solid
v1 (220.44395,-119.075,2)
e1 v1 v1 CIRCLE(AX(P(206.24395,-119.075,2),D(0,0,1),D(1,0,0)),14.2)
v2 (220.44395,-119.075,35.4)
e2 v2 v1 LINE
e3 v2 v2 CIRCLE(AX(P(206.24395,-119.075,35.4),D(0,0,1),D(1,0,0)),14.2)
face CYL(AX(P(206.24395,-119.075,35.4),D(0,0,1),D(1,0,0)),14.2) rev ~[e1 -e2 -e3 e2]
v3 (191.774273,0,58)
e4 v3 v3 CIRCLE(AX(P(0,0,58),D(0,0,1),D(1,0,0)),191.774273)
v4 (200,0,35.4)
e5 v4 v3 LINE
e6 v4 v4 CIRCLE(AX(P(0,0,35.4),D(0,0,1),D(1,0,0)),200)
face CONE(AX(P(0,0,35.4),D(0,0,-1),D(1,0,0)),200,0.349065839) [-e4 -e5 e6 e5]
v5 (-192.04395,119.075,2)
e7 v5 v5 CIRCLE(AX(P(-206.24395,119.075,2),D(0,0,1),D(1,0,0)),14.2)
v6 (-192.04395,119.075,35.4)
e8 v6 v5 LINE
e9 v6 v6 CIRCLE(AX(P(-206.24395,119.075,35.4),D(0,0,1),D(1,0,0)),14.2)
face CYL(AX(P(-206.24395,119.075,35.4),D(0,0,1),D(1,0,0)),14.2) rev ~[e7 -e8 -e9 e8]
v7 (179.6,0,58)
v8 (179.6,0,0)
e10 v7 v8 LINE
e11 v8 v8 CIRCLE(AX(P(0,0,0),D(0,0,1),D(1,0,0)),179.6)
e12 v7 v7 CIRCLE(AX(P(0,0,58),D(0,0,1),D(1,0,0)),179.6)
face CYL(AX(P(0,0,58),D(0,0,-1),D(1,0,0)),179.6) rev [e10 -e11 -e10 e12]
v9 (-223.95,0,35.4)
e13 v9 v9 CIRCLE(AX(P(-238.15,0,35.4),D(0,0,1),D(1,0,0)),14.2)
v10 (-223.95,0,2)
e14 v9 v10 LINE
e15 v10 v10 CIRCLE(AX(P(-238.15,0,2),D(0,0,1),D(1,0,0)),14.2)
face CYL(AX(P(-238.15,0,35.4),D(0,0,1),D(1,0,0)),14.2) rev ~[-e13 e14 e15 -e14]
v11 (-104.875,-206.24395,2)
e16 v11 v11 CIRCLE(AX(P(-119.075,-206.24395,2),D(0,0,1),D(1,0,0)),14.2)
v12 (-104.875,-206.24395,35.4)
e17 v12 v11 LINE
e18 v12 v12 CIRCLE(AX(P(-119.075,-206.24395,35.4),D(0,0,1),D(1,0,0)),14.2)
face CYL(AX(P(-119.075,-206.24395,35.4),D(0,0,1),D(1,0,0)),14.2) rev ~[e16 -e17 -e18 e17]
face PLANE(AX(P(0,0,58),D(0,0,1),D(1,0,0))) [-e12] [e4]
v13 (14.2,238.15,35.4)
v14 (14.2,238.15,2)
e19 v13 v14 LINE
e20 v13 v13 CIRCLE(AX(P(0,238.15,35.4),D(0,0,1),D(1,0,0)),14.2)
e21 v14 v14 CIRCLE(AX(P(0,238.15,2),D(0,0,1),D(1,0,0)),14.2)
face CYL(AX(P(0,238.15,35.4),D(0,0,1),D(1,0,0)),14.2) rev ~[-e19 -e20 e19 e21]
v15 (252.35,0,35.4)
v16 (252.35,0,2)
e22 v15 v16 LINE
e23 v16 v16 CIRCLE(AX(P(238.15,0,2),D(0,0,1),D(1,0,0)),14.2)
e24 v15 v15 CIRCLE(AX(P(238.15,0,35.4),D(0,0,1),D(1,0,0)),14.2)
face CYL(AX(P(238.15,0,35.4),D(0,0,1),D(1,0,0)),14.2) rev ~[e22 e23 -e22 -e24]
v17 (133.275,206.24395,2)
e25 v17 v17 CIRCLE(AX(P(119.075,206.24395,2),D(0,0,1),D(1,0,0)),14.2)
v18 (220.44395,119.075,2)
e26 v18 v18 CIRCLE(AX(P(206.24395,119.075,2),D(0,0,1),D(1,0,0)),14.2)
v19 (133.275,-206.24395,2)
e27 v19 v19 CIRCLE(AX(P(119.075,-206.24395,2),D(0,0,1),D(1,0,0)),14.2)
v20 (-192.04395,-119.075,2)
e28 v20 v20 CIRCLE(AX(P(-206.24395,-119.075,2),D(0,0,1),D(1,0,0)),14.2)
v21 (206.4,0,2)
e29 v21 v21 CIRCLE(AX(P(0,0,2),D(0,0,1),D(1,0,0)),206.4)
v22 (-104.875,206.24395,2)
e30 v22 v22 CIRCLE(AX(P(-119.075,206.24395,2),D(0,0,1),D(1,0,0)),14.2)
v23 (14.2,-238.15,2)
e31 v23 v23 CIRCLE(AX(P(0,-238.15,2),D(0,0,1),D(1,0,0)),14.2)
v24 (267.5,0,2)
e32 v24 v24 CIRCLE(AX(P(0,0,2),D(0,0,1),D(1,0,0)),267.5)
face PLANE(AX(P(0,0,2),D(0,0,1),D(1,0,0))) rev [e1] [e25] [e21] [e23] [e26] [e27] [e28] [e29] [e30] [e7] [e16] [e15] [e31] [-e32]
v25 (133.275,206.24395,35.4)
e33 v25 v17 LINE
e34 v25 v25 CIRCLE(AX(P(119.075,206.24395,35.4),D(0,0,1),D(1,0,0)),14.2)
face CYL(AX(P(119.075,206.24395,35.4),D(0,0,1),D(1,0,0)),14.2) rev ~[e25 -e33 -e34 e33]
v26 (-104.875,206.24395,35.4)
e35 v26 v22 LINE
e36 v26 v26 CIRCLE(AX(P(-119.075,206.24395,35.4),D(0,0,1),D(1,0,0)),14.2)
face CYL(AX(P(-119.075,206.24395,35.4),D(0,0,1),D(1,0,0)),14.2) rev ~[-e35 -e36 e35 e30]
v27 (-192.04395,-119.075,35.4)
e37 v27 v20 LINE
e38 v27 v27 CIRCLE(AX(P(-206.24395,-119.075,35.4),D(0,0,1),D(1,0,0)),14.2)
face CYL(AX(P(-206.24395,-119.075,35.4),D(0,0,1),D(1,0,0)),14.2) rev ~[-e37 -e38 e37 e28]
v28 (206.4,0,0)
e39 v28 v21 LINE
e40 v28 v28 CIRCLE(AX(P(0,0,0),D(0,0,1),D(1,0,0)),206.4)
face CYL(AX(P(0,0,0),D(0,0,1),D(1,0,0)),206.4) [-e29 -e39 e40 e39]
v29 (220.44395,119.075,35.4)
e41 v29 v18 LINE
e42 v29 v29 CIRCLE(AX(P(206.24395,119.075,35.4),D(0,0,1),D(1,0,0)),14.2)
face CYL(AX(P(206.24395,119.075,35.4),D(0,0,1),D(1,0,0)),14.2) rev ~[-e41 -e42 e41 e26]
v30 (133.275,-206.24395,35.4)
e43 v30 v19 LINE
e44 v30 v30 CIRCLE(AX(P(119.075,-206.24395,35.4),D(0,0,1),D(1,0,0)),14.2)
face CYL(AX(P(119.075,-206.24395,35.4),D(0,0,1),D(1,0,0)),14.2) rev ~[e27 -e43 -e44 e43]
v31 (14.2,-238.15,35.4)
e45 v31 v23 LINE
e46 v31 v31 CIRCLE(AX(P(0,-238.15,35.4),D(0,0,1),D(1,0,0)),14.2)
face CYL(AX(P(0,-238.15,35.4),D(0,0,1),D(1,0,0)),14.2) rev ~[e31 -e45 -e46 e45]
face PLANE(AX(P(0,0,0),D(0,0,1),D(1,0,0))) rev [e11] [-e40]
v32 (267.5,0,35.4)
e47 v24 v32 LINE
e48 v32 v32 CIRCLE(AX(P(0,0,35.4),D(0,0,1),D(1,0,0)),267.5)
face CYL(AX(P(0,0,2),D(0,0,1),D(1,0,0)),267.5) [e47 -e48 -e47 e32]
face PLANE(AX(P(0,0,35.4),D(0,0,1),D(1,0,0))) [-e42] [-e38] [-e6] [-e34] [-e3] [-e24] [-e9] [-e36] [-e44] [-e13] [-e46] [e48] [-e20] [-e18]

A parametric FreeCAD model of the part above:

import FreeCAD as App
import Part
import Sketcher
Q = App.Units.Quantity


def add_polygon(sketch, points):
    """Adds a closed chain of lines whose ends are joined by coincident constraints."""
    first, n = sketch.GeometryCount, len(points)
    for a, b in zip(points, points[1:] + points[:1]):
        sketch.addGeometry(Part.LineSegment(App.Vector(*a, 0), App.Vector(*b, 0)), False)
    for i in range(n):
        sketch.addConstraint(Sketcher.Constraint("Coincident", first + i, 2, first + (i + 1) % n, 1))

doc = App.newDocument("Part")
body = doc.addObject("PartDesign::Body", "Body")

# Sketch on XZ plane
sketch1 = body.newObject("Sketcher::SketchObject", "Sketch")
sketch1.AttachmentSupport = (doc.getObject("XZ_Plane"), [""])
sketch1.MapMode = "FlatFace"
add_polygon(sketch1, [(179.6, 58), (179.6, 0), (206.4, 0), (206.4, 2), (267.5, 2), (267.5, 35.4), (200, 35.4), (191.774273, 58)])  # lines 0-7
sketch1.addConstraint(Sketcher.Constraint("Vertical", 0))
sketch1.addConstraint(Sketcher.Constraint("Horizontal", 1))
sketch1.addConstraint(Sketcher.Constraint("Vertical", 2))
sketch1.addConstraint(Sketcher.Constraint("Horizontal", 3))
sketch1.addConstraint(Sketcher.Constraint("Vertical", 4))
sketch1.addConstraint(Sketcher.Constraint("Horizontal", 5))
sketch1.addConstraint(Sketcher.Constraint("Horizontal", 7))
sketch1.addConstraint(Sketcher.Constraint("PointOnObject", 0, 2, -1))
sketch1.addConstraint(Sketcher.Constraint("DistanceY", 0, 2, 0, 1, 58.0))
sketch1.addConstraint(Sketcher.Constraint("DistanceY", 2, 1, 2, 2, 2.0))
sketch1.addConstraint(Sketcher.Constraint("Angle", 6, Q("109.999999 deg")))
sketch1.addConstraint(Sketcher.Constraint("DistanceX", 1, 1, 1, 2, 26.8))
sketch1.addConstraint(Sketcher.Constraint("DistanceX", 3, 1, 3, 2, 61.1))
sketch1.addConstraint(Sketcher.Constraint("DistanceX", 5, 2, 5, 1, 67.5))
sketch1.addConstraint(Sketcher.Constraint("DistanceY", 4, 1, 4, 2, 33.4))
sketch1.addConstraint(Sketcher.Constraint("DistanceX", -1, 1, 5, 2, 200.0))
revolution = body.newObject("PartDesign::Revolution", "Revolution")
revolution.Profile = sketch1
revolution.ReferenceAxis = (sketch1, ["V_Axis"])
revolution.Angle = 360

# Sketch on XY plane
sketch2 = body.newObject("Sketcher::SketchObject", "Sketch001")
sketch2.AttachmentSupport = (doc.getObject("XY_Plane"), [""])
sketch2.MapMode = "FlatFace"
sketch2.AttachmentOffset = App.Placement(App.Vector(0, 0, 35.4), App.Rotation())
sketch2.addGeometry(Part.Circle(App.Vector(0, 238.15, 0), App.Vector(0, 0, 1), 14.2), False)
sketch2.addGeometry(Part.Circle(App.Vector(-119.075, 206.24395, 0), App.Vector(0, 0, 1), 14.2), False)
sketch2.addGeometry(Part.Circle(App.Vector(-206.24395, 119.075, 0), App.Vector(0, 0, 1), 14.2), False)
sketch2.addGeometry(Part.Circle(App.Vector(-238.15, 0, 0), App.Vector(0, 0, 1), 14.2), False)
sketch2.addGeometry(Part.Circle(App.Vector(-206.24395, -119.075, 0), App.Vector(0, 0, 1), 14.2), False)
sketch2.addGeometry(Part.Circle(App.Vector(-119.075, -206.24395, 0), App.Vector(0, 0, 1), 14.2), False)
sketch2.addGeometry(Part.Circle(App.Vector(0, -238.15, 0), App.Vector(0, 0, 1), 14.2), False)
sketch2.addGeometry(Part.Circle(App.Vector(119.075, -206.24395, 0), App.Vector(0, 0, 1), 14.2), False)
sketch2.addGeometry(Part.Circle(App.Vector(206.24395, -119.075, 0), App.Vector(0, 0, 1), 14.2), False)
sketch2.addGeometry(Part.Circle(App.Vector(238.15, 0, 0), App.Vector(0, 0, 1), 14.2), False)
sketch2.addGeometry(Part.Circle(App.Vector(206.24395, 119.075, 0), App.Vector(0, 0, 1), 14.2), False)
sketch2.addGeometry(Part.Circle(App.Vector(119.075, 206.24395, 0), App.Vector(0, 0, 1), 14.2), False)
sketch2.addConstraint(Sketcher.Constraint("Equal", 0, 1))
sketch2.addConstraint(Sketcher.Constraint("Equal", 1, 2))
sketch2.addConstraint(Sketcher.Constraint("Equal", 2, 3))
sketch2.addConstraint(Sketcher.Constraint("Equal", 3, 4))
sketch2.addConstraint(Sketcher.Constraint("Equal", 4, 5))
sketch2.addConstraint(Sketcher.Constraint("Equal", 5, 6))
sketch2.addConstraint(Sketcher.Constraint("Equal", 6, 7))
sketch2.addConstraint(Sketcher.Constraint("Equal", 7, 8))
sketch2.addConstraint(Sketcher.Constraint("Equal", 8, 9))
sketch2.addConstraint(Sketcher.Constraint("Equal", 9, 10))
sketch2.addConstraint(Sketcher.Constraint("Equal", 10, 11))
sketch2.addConstraint(Sketcher.Constraint("Symmetric", 0, 3, 6, 3, -1, 1))
sketch2.addConstraint(Sketcher.Constraint("Symmetric", 1, 3, 7, 3, -1, 1))
sketch2.addConstraint(Sketcher.Constraint("Symmetric", 2, 3, 8, 3, -1, 1))
sketch2.addConstraint(Sketcher.Constraint("Symmetric", 3, 3, 9, 3, -1, 1))
sketch2.addConstraint(Sketcher.Constraint("Symmetric", 4, 3, 10, 3, -1, 1))
sketch2.addConstraint(Sketcher.Constraint("Symmetric", 5, 3, 11, 3, -1, 1))
sketch2.addConstraint(Sketcher.Constraint("Symmetric", 5, 3, 7, 3, -2))
sketch2.addConstraint(Sketcher.Constraint("Symmetric", 4, 3, 8, 3, -2))
sketch2.addConstraint(Sketcher.Constraint("PointOnObject", 0, 3, -2))
sketch2.addConstraint(Sketcher.Constraint("PointOnObject", 3, 3, -1))
sketch2.addConstraint(Sketcher.Constraint("Diameter", 0, 28.4))
sketch2.addConstraint(Sketcher.Constraint("DistanceY", -1, 1, 0, 3, 238.15))
sketch2.addConstraint(Sketcher.Constraint("DistanceX", 3, 3, -1, 1, 238.15))
sketch2.addConstraint(Sketcher.Constraint("DistanceY", 4, 3, 2, 3, 238.15))
sketch2.addConstraint(Sketcher.Constraint("DistanceX", 5, 3, 7, 3, 238.15))
sketch2.addConstraint(Sketcher.Constraint("DistanceY", 5, 3, 1, 3, 412.4879))
sketch2.addConstraint(Sketcher.Constraint("DistanceX", 4, 3, 8, 3, 412.4879))
pocket1 = body.newObject("PartDesign::Pocket", "Pocket")
pocket1.Profile = sketch2
pocket1.Type = "ThroughAll"

doc.recompute()
